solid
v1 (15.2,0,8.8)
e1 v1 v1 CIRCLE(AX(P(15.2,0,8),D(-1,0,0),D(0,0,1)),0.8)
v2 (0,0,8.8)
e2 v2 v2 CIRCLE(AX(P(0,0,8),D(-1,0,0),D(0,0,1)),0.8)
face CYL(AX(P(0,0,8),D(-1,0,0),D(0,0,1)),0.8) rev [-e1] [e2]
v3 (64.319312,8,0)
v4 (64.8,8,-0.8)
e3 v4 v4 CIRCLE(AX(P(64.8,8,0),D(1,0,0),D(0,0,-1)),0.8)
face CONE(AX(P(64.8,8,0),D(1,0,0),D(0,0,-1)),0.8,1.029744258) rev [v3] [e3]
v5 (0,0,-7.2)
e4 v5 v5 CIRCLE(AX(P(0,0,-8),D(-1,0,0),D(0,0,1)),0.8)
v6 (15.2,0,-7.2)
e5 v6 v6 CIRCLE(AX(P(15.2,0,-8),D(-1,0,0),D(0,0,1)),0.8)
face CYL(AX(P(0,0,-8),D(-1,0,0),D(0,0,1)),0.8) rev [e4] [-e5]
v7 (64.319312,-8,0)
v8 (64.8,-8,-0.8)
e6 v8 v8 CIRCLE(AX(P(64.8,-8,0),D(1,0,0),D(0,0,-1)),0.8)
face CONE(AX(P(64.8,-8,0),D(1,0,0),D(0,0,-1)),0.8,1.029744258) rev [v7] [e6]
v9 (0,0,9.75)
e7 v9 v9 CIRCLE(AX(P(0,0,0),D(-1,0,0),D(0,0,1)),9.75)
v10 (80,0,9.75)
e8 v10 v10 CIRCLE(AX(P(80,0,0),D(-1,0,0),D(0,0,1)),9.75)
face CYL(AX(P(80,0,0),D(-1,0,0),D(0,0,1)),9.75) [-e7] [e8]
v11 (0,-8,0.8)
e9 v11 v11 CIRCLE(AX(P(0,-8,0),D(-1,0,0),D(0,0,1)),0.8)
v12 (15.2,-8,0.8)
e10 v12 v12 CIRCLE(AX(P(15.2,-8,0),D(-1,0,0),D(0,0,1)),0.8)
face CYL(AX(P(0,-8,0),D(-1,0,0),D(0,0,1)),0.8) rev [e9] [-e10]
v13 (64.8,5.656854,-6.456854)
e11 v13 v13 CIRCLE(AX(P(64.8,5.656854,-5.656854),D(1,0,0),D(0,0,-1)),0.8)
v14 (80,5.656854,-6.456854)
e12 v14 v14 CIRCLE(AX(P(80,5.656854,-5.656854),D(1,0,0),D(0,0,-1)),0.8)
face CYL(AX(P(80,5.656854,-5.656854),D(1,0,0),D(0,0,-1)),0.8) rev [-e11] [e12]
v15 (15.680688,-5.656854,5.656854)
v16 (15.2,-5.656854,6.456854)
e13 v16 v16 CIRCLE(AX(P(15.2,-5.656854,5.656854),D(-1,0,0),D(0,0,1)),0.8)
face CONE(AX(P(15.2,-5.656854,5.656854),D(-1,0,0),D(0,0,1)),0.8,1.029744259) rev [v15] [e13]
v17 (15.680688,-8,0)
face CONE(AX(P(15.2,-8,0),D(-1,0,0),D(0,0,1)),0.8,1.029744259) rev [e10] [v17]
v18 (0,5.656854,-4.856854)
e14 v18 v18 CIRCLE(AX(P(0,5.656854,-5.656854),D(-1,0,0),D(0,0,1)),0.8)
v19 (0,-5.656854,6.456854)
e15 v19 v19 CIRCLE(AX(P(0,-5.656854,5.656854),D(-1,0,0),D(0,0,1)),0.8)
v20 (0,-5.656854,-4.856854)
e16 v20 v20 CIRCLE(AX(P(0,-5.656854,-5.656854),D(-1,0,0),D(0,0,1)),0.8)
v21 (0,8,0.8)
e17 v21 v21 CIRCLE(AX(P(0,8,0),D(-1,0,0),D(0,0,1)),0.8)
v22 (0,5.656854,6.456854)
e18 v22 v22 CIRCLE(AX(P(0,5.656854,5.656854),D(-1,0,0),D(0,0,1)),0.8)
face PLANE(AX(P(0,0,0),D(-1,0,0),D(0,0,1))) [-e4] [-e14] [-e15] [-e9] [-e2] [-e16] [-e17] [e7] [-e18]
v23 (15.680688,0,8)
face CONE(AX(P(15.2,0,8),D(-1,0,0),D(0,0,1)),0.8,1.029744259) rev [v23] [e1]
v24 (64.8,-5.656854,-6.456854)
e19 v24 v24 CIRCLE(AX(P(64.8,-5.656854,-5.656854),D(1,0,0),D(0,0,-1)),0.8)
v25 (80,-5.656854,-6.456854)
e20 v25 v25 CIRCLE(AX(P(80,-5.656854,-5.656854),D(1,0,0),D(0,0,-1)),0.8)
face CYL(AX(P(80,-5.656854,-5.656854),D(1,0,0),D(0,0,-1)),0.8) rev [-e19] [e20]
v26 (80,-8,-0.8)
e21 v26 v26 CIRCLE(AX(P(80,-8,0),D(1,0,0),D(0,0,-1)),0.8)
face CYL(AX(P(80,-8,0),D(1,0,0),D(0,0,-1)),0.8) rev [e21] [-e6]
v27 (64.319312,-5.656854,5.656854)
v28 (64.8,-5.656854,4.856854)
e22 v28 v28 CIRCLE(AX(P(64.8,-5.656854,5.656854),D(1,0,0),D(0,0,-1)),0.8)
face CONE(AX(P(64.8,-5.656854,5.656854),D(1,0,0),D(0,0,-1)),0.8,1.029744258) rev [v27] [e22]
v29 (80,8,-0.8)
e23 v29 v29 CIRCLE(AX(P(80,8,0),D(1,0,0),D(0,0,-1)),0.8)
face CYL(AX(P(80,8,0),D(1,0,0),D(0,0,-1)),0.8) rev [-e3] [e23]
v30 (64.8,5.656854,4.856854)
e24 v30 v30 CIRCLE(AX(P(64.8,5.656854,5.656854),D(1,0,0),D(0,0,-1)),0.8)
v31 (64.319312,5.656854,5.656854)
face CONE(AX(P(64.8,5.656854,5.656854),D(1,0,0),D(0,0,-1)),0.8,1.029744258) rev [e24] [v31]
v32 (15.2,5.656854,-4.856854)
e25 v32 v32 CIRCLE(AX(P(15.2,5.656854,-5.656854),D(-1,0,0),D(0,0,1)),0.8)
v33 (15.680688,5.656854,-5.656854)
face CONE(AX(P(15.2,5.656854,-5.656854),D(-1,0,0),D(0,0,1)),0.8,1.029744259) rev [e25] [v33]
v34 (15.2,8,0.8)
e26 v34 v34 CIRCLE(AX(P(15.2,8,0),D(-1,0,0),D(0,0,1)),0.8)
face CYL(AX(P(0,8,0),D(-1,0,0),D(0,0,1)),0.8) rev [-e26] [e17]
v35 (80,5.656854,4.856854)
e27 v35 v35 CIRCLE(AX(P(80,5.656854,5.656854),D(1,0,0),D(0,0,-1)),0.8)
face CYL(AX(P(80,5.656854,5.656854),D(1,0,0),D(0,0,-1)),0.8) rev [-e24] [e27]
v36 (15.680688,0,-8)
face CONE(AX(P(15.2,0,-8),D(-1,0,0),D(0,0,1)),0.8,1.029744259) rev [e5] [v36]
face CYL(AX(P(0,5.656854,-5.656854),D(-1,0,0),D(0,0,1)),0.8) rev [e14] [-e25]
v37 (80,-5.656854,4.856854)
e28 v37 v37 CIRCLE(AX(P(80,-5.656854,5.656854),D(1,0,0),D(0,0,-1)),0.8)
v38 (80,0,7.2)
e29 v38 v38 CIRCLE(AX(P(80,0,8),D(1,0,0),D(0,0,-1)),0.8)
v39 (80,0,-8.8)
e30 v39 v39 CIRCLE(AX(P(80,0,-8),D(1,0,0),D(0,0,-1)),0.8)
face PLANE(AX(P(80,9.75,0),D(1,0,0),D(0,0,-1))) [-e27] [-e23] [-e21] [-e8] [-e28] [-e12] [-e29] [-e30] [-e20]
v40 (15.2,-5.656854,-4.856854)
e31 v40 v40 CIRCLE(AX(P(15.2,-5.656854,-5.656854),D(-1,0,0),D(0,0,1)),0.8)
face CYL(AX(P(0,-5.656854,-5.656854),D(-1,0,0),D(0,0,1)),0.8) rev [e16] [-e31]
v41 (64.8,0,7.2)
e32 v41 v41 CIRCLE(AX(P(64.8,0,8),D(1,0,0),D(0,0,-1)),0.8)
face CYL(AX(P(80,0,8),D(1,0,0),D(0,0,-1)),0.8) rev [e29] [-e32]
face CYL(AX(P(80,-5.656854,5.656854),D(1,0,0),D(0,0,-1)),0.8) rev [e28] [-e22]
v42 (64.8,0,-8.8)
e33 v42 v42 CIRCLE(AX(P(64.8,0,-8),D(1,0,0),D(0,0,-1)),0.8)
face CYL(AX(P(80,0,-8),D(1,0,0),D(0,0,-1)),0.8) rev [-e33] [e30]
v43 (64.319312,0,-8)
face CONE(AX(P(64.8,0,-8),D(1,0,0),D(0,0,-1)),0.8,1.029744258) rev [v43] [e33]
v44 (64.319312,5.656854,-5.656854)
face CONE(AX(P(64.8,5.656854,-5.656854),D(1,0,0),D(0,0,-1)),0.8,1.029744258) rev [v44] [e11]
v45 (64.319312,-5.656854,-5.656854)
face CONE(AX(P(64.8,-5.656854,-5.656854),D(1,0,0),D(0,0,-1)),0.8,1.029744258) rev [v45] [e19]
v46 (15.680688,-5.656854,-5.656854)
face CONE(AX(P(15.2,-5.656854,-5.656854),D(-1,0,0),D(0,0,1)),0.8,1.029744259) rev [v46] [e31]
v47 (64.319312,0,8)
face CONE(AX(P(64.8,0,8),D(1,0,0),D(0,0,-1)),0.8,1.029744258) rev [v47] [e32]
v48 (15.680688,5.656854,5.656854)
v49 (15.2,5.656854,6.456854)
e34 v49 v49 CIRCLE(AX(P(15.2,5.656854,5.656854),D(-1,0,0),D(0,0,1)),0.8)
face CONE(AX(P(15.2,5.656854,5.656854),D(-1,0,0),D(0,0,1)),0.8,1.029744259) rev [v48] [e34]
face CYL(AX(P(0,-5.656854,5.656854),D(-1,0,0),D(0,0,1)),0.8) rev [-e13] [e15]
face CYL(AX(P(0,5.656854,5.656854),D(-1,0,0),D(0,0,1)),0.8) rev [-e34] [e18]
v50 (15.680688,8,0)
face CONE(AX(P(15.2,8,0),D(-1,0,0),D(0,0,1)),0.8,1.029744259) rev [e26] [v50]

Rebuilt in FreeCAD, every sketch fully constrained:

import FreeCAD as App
import Part
import Sketcher

V = App.Vector


def add_polygon(sketch, points):
    """Adds a closed chain of lines whose ends are joined by coincident constraints."""
    first, n = sketch.GeometryCount, len(points)
    for a, b in zip(points, points[1:] + points[:1]):
        sketch.addGeometry(Part.LineSegment(App.Vector(*a, 0), App.Vector(*b, 0)), False)
    for i in range(n):
        sketch.addConstraint(Sketcher.Constraint("Coincident", first + i, 2, first + (i + 1) % n, 1))

doc = App.newDocument("Part")
body = doc.addObject("PartDesign::Body", "Body")

sketch1 = body.newObject("Sketcher::SketchObject", "Sketch")
sketch1.AttachmentSupport = (doc.getObject("XY_Plane"), [""])
sketch1.MapMode = "FlatFace"
add_polygon(sketch1, [(80, 10), (80, 0), (0, 0), (0, 10)])
sketch1.addConstraint([
    Sketcher.Constraint("Vertical", 0),
    Sketcher.Constraint("Horizontal", 1),
    Sketcher.Constraint("Vertical", 2),
    Sketcher.Constraint("Horizontal", 3),
    Sketcher.Constraint("Coincident", 1, 2, -1, 1),
    Sketcher.Constraint("DistanceX", 1, 2, 1, 1, 80.0),
    Sketcher.Constraint("DistanceY", 0, 2, 0, 1, 9.75),
])
revolution = body.newObject("PartDesign::Revolution", "Revolution")
revolution.Profile = sketch1
revolution.ReferenceAxis = (sketch1, ["H_Axis"])
revolution.Angle = 360

sketch2 = body.newObject("Sketcher::SketchObject", "Sketch001")
sketch2.AttachmentSupport = (doc.getObject("YZ_Plane"), [""])
sketch2.MapMode = "FlatFace"
sketch2.addGeometry([
    Part.Circle(V(8, 0, 0), V(0, 0, 1), 0.8),
    Part.Circle(V(5.7, -5.7, 0), V(0, 0, 1), 0.8),
    Part.Circle(V(0, -8, 0), V(0, 0, 1), 0.8),
    Part.Circle(V(-5.7, -5.7, 0), V(0, 0, 1), 0.8),
    Part.Circle(V(-8, 0, 0), V(0, 0, 1), 0.8),
    Part.Circle(V(-5.7, 5.7, 0), V(0, 0, 1), 0.8),
    Part.Circle(V(0, 8, 0), V(0, 0, 1), 0.8),
    Part.Circle(V(5.7, 5.7, 0), V(0, 0, 1), 0.8),
], False)
sketch2.addConstraint([
    Sketcher.Constraint("Equal", 0, 1),
    Sketcher.Constraint("Equal", 1, 2),
    Sketcher.Constraint("Equal", 2, 3),
    Sketcher.Constraint("Equal", 3, 4),
    Sketcher.Constraint("Equal", 4, 5),
    Sketcher.Constraint("Equal", 5, 6),
    Sketcher.Constraint("Equal", 6, 7),
    Sketcher.Constraint("Symmetric", 0, 3, 4, 3, -1, 1),
    Sketcher.Constraint("Symmetric", 1, 3, 5, 3, -1, 1),
    Sketcher.Constraint("Symmetric", 2, 3, 6, 3, -1, 1),
    Sketcher.Constraint("Symmetric", 3, 3, 7, 3, -1, 1),
    Sketcher.Constraint("Symmetric", 1, 3, 3, 3, -2),
    Sketcher.Constraint("PointOnObject", 0, 3, -1),
    Sketcher.Constraint("PointOnObject", 2, 3, -2),
    Sketcher.Constraint("Diameter", 0, 1.6),
    Sketcher.Constraint("DistanceX", -1, 1, 0, 3, 8.0),
    Sketcher.Constraint("DistanceY", 2, 3, -1, 1, 8.0),
    Sketcher.Constraint("DistanceX", 3, 3, 1, 3, 11.313708),
    Sketcher.Constraint("DistanceY", 3, 3, 5, 3, 11.313708),
])
doc.recompute()
hole = body.newObject("PartDesign::Hole", "Hole")
hole.Profile = sketch2
hole.ThreadType = "None"
hole.Diameter = 1.6
hole.DepthType = "Dimension"
hole.Depth = 15.2
hole.DrillPoint = "Angled"
hole.DrillPointAngle = 118
hole.Reversed = True

sketch3 = body.newObject("Sketcher::SketchObject", "Sketch002")
sketch3.AttachmentSupport = (doc.getObject("YZ_Plane"), [""])
sketch3.MapMode = "FlatFace"
sketch3.AttachmentOffset = App.Placement(V(0, 0, 80), App.Rotation())
sketch3.addGeometry([
    Part.Circle(V(8, 0, 0), V(0, 0, 1), 0.8),
    Part.Circle(V(5.7, -5.7, 0), V(0, 0, 1), 0.8),
    Part.Circle(V(0, -8, 0), V(0, 0, 1), 0.8),
    Part.Circle(V(-5.7, -5.7, 0), V(0, 0, 1), 0.8),
    Part.Circle(V(-8, 0, 0), V(0, 0, 1), 0.8),
    Part.Circle(V(-5.7, 5.7, 0), V(0, 0, 1), 0.8),
    Part.Circle(V(0, 8, 0), V(0, 0, 1), 0.8),
    Part.Circle(V(5.7, 5.7, 0), V(0, 0, 1), 0.8),
], False)
sketch3.addConstraint([
    Sketcher.Constraint("Equal", 0, 1),
    Sketcher.Constraint("Equal", 1, 2),
    Sketcher.Constraint("Equal", 2, 3),
    Sketcher.Constraint("Equal", 3, 4),
    Sketcher.Constraint("Equal", 4, 5),
    Sketcher.Constraint("Equal", 5, 6),
    Sketcher.Constraint("Equal", 6, 7),
    Sketcher.Constraint("Symmetric", 0, 3, 4, 3, -1, 1),
    Sketcher.Constraint("Symmetric", 1, 3, 5, 3, -1, 1),
    Sketcher.Constraint("Symmetric", 2, 3, 6, 3, -1, 1),
    Sketcher.Constraint("Symmetric", 3, 3, 7, 3, -1, 1),
    Sketcher.Constraint("Symmetric", 1, 3, 3, 3, -2),
    Sketcher.Constraint("PointOnObject", 0, 3, -1),
    Sketcher.Constraint("PointOnObject", 2, 3, -2),
    Sketcher.Constraint("Diameter", 0, 1.6),
    Sketcher.Constraint("DistanceX", -1, 1, 0, 3, 8.0),
    Sketcher.Constraint("DistanceY", 2, 3, -1, 1, 8.0),
    Sketcher.Constraint("DistanceX", 3, 3, 1, 3, 11.313708),
    Sketcher.Constraint("DistanceY", 3, 3, 5, 3, 11.313708),
])
doc.recompute()
hole2 = body.newObject("PartDesign::Hole", "Hole001")
hole2.Profile = sketch3
hole2.ThreadType = "None"
hole2.Diameter = 1.6
hole2.DepthType = "Dimension"
hole2.Depth = 15.2
hole2.DrillPoint = "Angled"
hole2.DrillPointAngle = 118

doc.recompute()
